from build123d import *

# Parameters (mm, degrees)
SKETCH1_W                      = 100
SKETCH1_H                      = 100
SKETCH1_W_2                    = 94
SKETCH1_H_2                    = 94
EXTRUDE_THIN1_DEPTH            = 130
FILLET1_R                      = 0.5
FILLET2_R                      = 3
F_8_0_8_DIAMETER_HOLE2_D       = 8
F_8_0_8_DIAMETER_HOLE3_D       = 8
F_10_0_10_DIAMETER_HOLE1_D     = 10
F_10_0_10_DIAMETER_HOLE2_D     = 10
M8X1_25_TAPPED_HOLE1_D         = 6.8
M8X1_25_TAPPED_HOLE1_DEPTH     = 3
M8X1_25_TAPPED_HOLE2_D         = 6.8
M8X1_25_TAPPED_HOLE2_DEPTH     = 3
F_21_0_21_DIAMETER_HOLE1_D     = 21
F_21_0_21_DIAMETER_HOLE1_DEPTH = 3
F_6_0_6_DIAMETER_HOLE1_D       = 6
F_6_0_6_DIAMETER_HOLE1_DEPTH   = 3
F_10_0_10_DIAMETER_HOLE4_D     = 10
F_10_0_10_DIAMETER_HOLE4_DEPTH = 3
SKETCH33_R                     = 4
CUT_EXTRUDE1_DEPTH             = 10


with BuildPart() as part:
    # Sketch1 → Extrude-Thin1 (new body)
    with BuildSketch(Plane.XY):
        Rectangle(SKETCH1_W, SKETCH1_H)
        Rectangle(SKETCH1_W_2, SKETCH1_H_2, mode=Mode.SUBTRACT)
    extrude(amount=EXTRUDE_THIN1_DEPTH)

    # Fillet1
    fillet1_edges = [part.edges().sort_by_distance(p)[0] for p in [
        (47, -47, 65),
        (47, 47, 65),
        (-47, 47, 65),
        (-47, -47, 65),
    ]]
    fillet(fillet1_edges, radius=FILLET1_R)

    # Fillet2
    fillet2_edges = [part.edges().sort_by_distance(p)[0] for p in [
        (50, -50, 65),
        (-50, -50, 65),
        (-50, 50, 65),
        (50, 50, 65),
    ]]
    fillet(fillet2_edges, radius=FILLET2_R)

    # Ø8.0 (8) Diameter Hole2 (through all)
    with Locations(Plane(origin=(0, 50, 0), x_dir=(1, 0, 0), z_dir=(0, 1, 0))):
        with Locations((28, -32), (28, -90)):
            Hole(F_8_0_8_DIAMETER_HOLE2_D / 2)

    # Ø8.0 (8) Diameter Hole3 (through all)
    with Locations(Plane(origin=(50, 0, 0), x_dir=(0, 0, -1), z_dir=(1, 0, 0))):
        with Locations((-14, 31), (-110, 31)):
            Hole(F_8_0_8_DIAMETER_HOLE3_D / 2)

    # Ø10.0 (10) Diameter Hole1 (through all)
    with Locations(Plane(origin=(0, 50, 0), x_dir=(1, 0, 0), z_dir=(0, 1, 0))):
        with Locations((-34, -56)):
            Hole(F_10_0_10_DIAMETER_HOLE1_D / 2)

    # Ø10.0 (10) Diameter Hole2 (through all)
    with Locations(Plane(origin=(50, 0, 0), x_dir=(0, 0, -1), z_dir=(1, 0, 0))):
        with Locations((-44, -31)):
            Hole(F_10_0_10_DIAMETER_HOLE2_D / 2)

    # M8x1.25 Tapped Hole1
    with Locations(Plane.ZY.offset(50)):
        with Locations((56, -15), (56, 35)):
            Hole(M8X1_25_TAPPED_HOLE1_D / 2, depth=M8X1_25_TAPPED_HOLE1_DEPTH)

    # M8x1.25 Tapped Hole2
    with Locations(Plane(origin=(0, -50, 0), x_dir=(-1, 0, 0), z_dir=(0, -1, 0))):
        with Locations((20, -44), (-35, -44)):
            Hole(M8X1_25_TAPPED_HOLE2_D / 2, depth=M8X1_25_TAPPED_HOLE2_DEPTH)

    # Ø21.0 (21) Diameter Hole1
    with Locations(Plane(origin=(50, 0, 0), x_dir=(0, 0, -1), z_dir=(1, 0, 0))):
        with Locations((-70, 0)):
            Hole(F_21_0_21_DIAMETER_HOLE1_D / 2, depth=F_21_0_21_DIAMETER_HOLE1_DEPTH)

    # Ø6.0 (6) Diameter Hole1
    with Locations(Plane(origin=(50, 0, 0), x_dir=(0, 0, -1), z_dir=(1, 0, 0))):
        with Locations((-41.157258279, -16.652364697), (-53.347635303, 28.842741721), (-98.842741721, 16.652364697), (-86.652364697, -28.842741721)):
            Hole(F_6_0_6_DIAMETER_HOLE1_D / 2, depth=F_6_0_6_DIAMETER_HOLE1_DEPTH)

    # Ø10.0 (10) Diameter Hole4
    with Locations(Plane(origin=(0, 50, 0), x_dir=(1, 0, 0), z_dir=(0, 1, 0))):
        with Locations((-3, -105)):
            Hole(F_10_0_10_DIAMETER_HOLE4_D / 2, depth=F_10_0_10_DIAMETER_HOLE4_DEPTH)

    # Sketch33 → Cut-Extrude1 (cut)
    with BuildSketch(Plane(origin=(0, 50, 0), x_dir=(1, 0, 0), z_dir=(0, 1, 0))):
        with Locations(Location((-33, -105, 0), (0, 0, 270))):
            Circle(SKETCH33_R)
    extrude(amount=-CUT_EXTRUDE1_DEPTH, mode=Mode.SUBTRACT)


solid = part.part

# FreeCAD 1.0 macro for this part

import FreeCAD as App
import Part
import Sketcher
from FreeCAD import Vector


def edges_at(feature, points):
    """Names of the edges that pass closest to the given points."""
    edges = feature.Shape.Edges
    near = lambda p: min(range(len(edges)), key=lambda i: edges[i].distToShape(Part.Vertex(*p))[0])
    return sorted({f"Edge{near(p) + 1}" for p in points})

doc = App.newDocument("Part")
params = doc.addObject("Spreadsheet::Sheet", "Params")
for row, (alias, value) in enumerate([
    ("sketch1_width", "100 mm"),
    ("sketch1_width2", "94 mm"),
    ("pad1_length", "130 mm"),
    ("fillet_radius", "0.5 mm"),
    ("fillet2_radius", "3 mm"),
    ("sketch2_diameter", "8 mm"),
    ("hole_diameter", "8 mm"),
    ("sketch3_diameter", "8 mm"),
    ("hole2_diameter", "8 mm"),
    ("sketch4_diameter", "10 mm"),
    ("hole3_diameter", "10 mm"),
    ("sketch5_diameter", "10 mm"),
    ("hole4_diameter", "10 mm"),
    ("sketch6_diameter", "6.8 mm"),
    ("hole5_diameter", "6.8 mm"),
    ("hole5_depth", "3 mm"),
    ("sketch7_diameter", "6.8 mm"),
    ("hole6_diameter", "6.8 mm"),
    ("hole6_depth", "3 mm"),
    ("sketch8_diameter", "21 mm"),
    ("hole7_diameter", "21 mm"),
    ("hole7_depth", "3 mm"),
    ("sketch9_diameter", "6 mm"),
    ("hole8_diameter", "6 mm"),
    ("hole8_depth", "3 mm"),
    ("sketch10_diameter", "10 mm"),
    ("hole9_diameter", "10 mm"),
    ("hole9_depth", "3 mm"),
    ("sketch11_diameter", "8 mm"),
    ("pocket1_length", "10 mm"),
], start=1):
    params.set(f"A{row}", alias)
    params.set(f"B{row}", "=" + value)
    params.setAlias(f"B{row}", alias)

body = doc.addObject("PartDesign::Body", "Body")

sketch1 = body.newObject("Sketcher::SketchObject", "Sketch")
sketch1.AttachmentSupport = (doc.getObject("XY_Plane"), [""])
sketch1.MapMode = "FlatFace"
sketch1.addGeometry([
    Part.LineSegment(Vector(-50, 50, 0), Vector(-50, -50, 0)),
    Part.LineSegment(Vector(-50, -50, 0), Vector(50, -50, 0)),
    Part.LineSegment(Vector(50, -50, 0), Vector(50, 50, 0)),
    Part.LineSegment(Vector(50, 50, 0), Vector(-50, 50, 0)),
    Part.LineSegment(Vector(47, -47, 0), Vector(-47, -47, 0)),
    Part.LineSegment(Vector(-47, -47, 0), Vector(-47, 47, 0)),
    Part.LineSegment(Vector(-47, 47, 0), Vector(47, 47, 0)),
    Part.LineSegment(Vector(47, 47, 0), Vector(47, -47, 0)),
], False)
sketch1.addConstraint([
    Sketcher.Constraint("Coincident", 0, 2, 1, 1),
    Sketcher.Constraint("Coincident", 1, 2, 2, 1),
    Sketcher.Constraint("Coincident", 2, 2, 3, 1),
    Sketcher.Constraint("Coincident", 3, 2, 0, 1),
    Sketcher.Constraint("Coincident", 4, 2, 5, 1),
    Sketcher.Constraint("Coincident", 5, 2, 6, 1),
    Sketcher.Constraint("Coincident", 6, 2, 7, 1),
    Sketcher.Constraint("Coincident", 7, 2, 4, 1),
    Sketcher.Constraint("Vertical", 0),
    Sketcher.Constraint("Horizontal", 1),
    Sketcher.Constraint("Vertical", 2),
    Sketcher.Constraint("Horizontal", 3),
    Sketcher.Constraint("Horizontal", 4),
    Sketcher.Constraint("Vertical", 5),
    Sketcher.Constraint("Horizontal", 6),
    Sketcher.Constraint("Vertical", 7),
    Sketcher.Constraint("Symmetric", 0, 2, 2, 2, -1, 1),
    Sketcher.Constraint("Symmetric", 4, 2, 6, 2, -1, 1),
    Sketcher.Constraint("Equal", 3, 0),
    Sketcher.Constraint("Equal", 6, 5),
    Sketcher.Constraint("DistanceX", 1, 1, 1, 2, 100.0),
    Sketcher.Constraint("DistanceX", 4, 2, 4, 1, 94.0),
])
sketch1.setExpression("Constraints[20]", "Params.sketch1_width")
sketch1.setExpression("Constraints[21]", "Params.sketch1_width2")
pad1 = body.newObject("PartDesign::Pad", "Pad")
pad1.Profile = sketch1
pad1.setExpression("Length", "Params.pad1_length")
doc.recompute()

fillet = body.newObject("PartDesign::Fillet", "Fillet")
fillet.Base = (pad1, edges_at(pad1, [
    (47, -47, 65),
    (47, 47, 65),
    (-47, 47, 65),
    (-47, -47, 65),
]))
fillet.setExpression("Radius", "Params.fillet_radius")
doc.recompute()

fillet2 = body.newObject("PartDesign::Fillet", "Fillet001")
fillet2.Base = (fillet, edges_at(fillet, [
    (50, -50, 65),
    (-50, -50, 65),
    (-50, 50, 65),
    (50, 50, 65),
]))
fillet2.setExpression("Radius", "Params.fillet2_radius")

sketch2 = body.newObject("Sketcher::SketchObject", "Sketch001")
sketch2.AttachmentSupport = (doc.getObject("XZ_Plane"), [""])
sketch2.MapMode = "FlatFace"
sketch2.AttachmentOffset = App.Placement(Vector(0, 0, -50), App.Rotation())
sketch2.addGeometry([
    Part.Circle(Vector(28, 32, 0), Vector(0, 0, 1), 4),
    Part.Circle(Vector(28, 90, 0), Vector(0, 0, 1), 4),
], False)
sketch2.addConstraint([
    Sketcher.Constraint("Equal", 0, 1),
    Sketcher.Constraint("Vertical", 0, 3, 1, 3),
    Sketcher.Constraint("Diameter", 0, 8.0),
    Sketcher.Constraint("DistanceX", -1, 1, 0, 3, 28.0),
    Sketcher.Constraint("DistanceY", -1, 1, 0, 3, 32.0),
    Sketcher.Constraint("DistanceY", -1, 1, 1, 3, 90.0),
])
sketch2.setExpression("Constraints[2]", "Params.sketch2_diameter")
doc.recompute()
hole = body.newObject("PartDesign::Hole", "Hole")
hole.Profile = sketch2
hole.ThreadType = "None"
hole.setExpression("Diameter", "Params.hole_diameter")
hole.DepthType = "ThroughAll"
hole.Reversed = True

sketch3 = body.newObject("Sketcher::SketchObject", "Sketch002")
sketch3.AttachmentSupport = (doc.getObject("YZ_Plane"), [""])
sketch3.MapMode = "FlatFace"
sketch3.AttachmentOffset = App.Placement(Vector(0, 0, 50), App.Rotation())
sketch3.addGeometry([
    Part.Circle(Vector(31, 14, 0), Vector(0, 0, 1), 4),
    Part.Circle(Vector(31, 110, 0), Vector(0, 0, 1), 4),
], False)
sketch3.addConstraint([
    Sketcher.Constraint("Equal", 0, 1),
    Sketcher.Constraint("Vertical", 0, 3, 1, 3),
    Sketcher.Constraint("Diameter", 0, 8.0),
    Sketcher.Constraint("DistanceX", -1, 1, 0, 3, 31.0),
    Sketcher.Constraint("DistanceY", -1, 1, 0, 3, 14.0),
    Sketcher.Constraint("DistanceY", -1, 1, 1, 3, 110.0),
])
sketch3.setExpression("Constraints[2]", "Params.sketch3_diameter")
doc.recompute()
hole2 = body.newObject("PartDesign::Hole", "Hole001")
hole2.Profile = sketch3
hole2.ThreadType = "None"
hole2.setExpression("Diameter", "Params.hole2_diameter")
hole2.DepthType = "ThroughAll"

sketch4 = body.newObject("Sketcher::SketchObject", "Sketch003")
sketch4.AttachmentSupport = (doc.getObject("XZ_Plane"), [""])
sketch4.MapMode = "FlatFace"
sketch4.AttachmentOffset = App.Placement(Vector(0, 0, -50), App.Rotation())
sketch4.addGeometry(Part.Circle(Vector(-34, 56, 0), Vector(0, 0, 1), 5), False)
sketch4.addConstraint([
    Sketcher.Constraint("Diameter", 0, 10.0),
    Sketcher.Constraint("DistanceX", 0, 3, -1, 1, 34.0),
    Sketcher.Constraint("DistanceY", -1, 1, 0, 3, 56.0),
])
sketch4.setExpression("Constraints[0]", "Params.sketch4_diameter")
doc.recompute()
hole3 = body.newObject("PartDesign::Hole", "Hole002")
hole3.Profile = sketch4
hole3.ThreadType = "None"
hole3.setExpression("Diameter", "Params.hole3_diameter")
hole3.DepthType = "ThroughAll"
hole3.Reversed = True

sketch5 = body.newObject("Sketcher::SketchObject", "Sketch004")
sketch5.AttachmentSupport = (doc.getObject("YZ_Plane"), [""])
sketch5.MapMode = "FlatFace"
sketch5.AttachmentOffset = App.Placement(Vector(0, 0, 50), App.Rotation())
sketch5.addGeometry(Part.Circle(Vector(-31, 44, 0), Vector(0, 0, 1), 5), False)
sketch5.addConstraint([
    Sketcher.Constraint("Diameter", 0, 10.0),
    Sketcher.Constraint("DistanceX", 0, 3, -1, 1, 31.0),
    Sketcher.Constraint("DistanceY", -1, 1, 0, 3, 44.0),
])
sketch5.setExpression("Constraints[0]", "Params.sketch5_diameter")
doc.recompute()
hole4 = body.newObject("PartDesign::Hole", "Hole003")
hole4.Profile = sketch5
hole4.ThreadType = "None"
hole4.setExpression("Diameter", "Params.hole4_diameter")
hole4.DepthType = "ThroughAll"

sketch6 = body.newObject("Sketcher::SketchObject", "Sketch005")
sketch6.AttachmentSupport = (doc.getObject("YZ_Plane"), [""])
sketch6.MapMode = "FlatFace"
sketch6.AttachmentOffset = App.Placement(Vector(0, 0, -50), App.Rotation())
sketch6.addGeometry([
    Part.Circle(Vector(-15, 56, 0), Vector(0, 0, 1), 3.4),
    Part.Circle(Vector(35, 56, 0), Vector(0, 0, 1), 3.4),
], False)
sketch6.addConstraint([
    Sketcher.Constraint("Equal", 0, 1),
    Sketcher.Constraint("Horizontal", 0, 3, 1, 3),
    Sketcher.Constraint("Diameter", 0, 6.8),
    Sketcher.Constraint("DistanceX", 0, 3, -1, 1, 15.0),
    Sketcher.Constraint("DistanceY", -1, 1, 0, 3, 56.0),
    Sketcher.Constraint("DistanceX", -1, 1, 1, 3, 35.0),
])
sketch6.setExpression("Constraints[2]", "Params.sketch6_diameter")
doc.recompute()
hole5 = body.newObject("PartDesign::Hole", "Hole004")
hole5.Profile = sketch6
hole5.ThreadType = "None"
hole5.setExpression("Diameter", "Params.hole5_diameter")
hole5.DepthType = "Dimension"
hole5.setExpression("Depth", "Params.hole5_depth")
hole5.DrillPoint = "Flat"
hole5.Reversed = True

sketch7 = body.newObject("Sketcher::SketchObject", "Sketch006")
sketch7.AttachmentSupport = (doc.getObject("XZ_Plane"), [""])
sketch7.MapMode = "FlatFace"
sketch7.AttachmentOffset = App.Placement(Vector(0, 0, 50), App.Rotation())
sketch7.addGeometry([
    Part.Circle(Vector(-20, 44, 0), Vector(0, 0, 1), 3.4),
    Part.Circle(Vector(35, 44, 0), Vector(0, 0, 1), 3.4),
], False)
sketch7.addConstraint([
    Sketcher.Constraint("Equal", 0, 1),
    Sketcher.Constraint("Horizontal", 0, 3, 1, 3),
    Sketcher.Constraint("Diameter", 0, 6.8),
    Sketcher.Constraint("DistanceX", 0, 3, -1, 1, 20.0),
    Sketcher.Constraint("DistanceY", -1, 1, 0, 3, 44.0),
    Sketcher.Constraint("DistanceX", -1, 1, 1, 3, 35.0),
])
sketch7.setExpression("Constraints[2]", "Params.sketch7_diameter")
doc.recompute()
hole6 = body.newObject("PartDesign::Hole", "Hole005")
hole6.Profile = sketch7
hole6.ThreadType = "None"
hole6.setExpression("Diameter", "Params.hole6_diameter")
hole6.DepthType = "Dimension"
hole6.setExpression("Depth", "Params.hole6_depth")
hole6.DrillPoint = "Flat"

sketch8 = body.newObject("Sketcher::SketchObject", "Sketch007")
sketch8.AttachmentSupport = (doc.getObject("YZ_Plane"), [""])
sketch8.MapMode = "FlatFace"
sketch8.AttachmentOffset = App.Placement(Vector(0, 0, 50), App.Rotation())
sketch8.addGeometry(Part.Circle(Vector(0, 70, 0), Vector(0, 0, 1), 10), False)
sketch8.addConstraint([
    Sketcher.Constraint("PointOnObject", 0, 3, -2),
    Sketcher.Constraint("Diameter", 0, 21.0),
    Sketcher.Constraint("DistanceY", -1, 1, 0, 3, 70.0),
])
sketch8.setExpression("Constraints[1]", "Params.sketch8_diameter")
doc.recompute()
hole7 = body.newObject("PartDesign::Hole", "Hole006")
hole7.Profile = sketch8
hole7.ThreadType = "None"
hole7.setExpression("Diameter", "Params.hole7_diameter")
hole7.DepthType = "Dimension"
hole7.setExpression("Depth", "Params.hole7_depth")
hole7.DrillPoint = "Flat"

sketch9 = body.newObject("Sketcher::SketchObject", "Sketch008")
sketch9.AttachmentSupport = (doc.getObject("YZ_Plane"), [""])
sketch9.MapMode = "FlatFace"
sketch9.AttachmentOffset = App.Placement(Vector(0, 0, 50), App.Rotation())
sketch9.addGeometry([
    Part.Circle(Vector(-16.7, 41.2, 0), Vector(0, 0, 1), 3),
    Part.Circle(Vector(28.8, 53.3, 0), Vector(0, 0, 1), 3),
    Part.Circle(Vector(16.7, 98.8, 0), Vector(0, 0, 1), 3),
    Part.Circle(Vector(-28.8, 86.7, 0), Vector(0, 0, 1), 3),
], False)
sketch9.addConstraint([
    Sketcher.Constraint("Equal", 0, 1),
    Sketcher.Constraint("Equal", 1, 2),
    Sketcher.Constraint("Equal", 2, 3),
    Sketcher.Constraint("Diameter", 0, 6.0),
    Sketcher.Constraint("DistanceY", -1, 1, 0, 3, 41.157258),
    Sketcher.Constraint("DistanceX", -1, 1, 1, 3, 28.842742),
    Sketcher.Constraint("DistanceY", -1, 1, 2, 3, 98.842742),
    Sketcher.Constraint("DistanceX", 3, 3, -1, 1, 28.842742),
    Sketcher.Constraint("DistanceX", 0, 3, 2, 3, 33.304729),
    Sketcher.Constraint("DistanceY", 1, 3, 3, 3, 33.304729),
    Sketcher.Constraint("DistanceX", 0, 3, -1, 1, 16.652365),
    Sketcher.Constraint("DistanceY", -1, 1, 1, 3, 53.347635),
])
sketch9.setExpression("Constraints[3]", "Params.sketch9_diameter")
doc.recompute()
hole8 = body.newObject("PartDesign::Hole", "Hole007")
hole8.Profile = sketch9
hole8.ThreadType = "None"
hole8.setExpression("Diameter", "Params.hole8_diameter")
hole8.DepthType = "Dimension"
hole8.setExpression("Depth", "Params.hole8_depth")
hole8.DrillPoint = "Flat"

sketch10 = body.newObject("Sketcher::SketchObject", "Sketch009")
sketch10.AttachmentSupport = (doc.getObject("XZ_Plane"), [""])
sketch10.MapMode = "FlatFace"
sketch10.AttachmentOffset = App.Placement(Vector(0, 0, -50), App.Rotation())
sketch10.addGeometry(Part.Circle(Vector(-3, 105, 0), Vector(0, 0, 1), 5), False)
sketch10.addConstraint([
    Sketcher.Constraint("Diameter", 0, 10.0),
    Sketcher.Constraint("DistanceX", 0, 3, -1, 1, 3.0),
    Sketcher.Constraint("DistanceY", -1, 1, 0, 3, 105.0),
])
sketch10.setExpression("Constraints[0]", "Params.sketch10_diameter")
doc.recompute()
hole9 = body.newObject("PartDesign::Hole", "Hole008")
hole9.Profile = sketch10
hole9.ThreadType = "None"
hole9.setExpression("Diameter", "Params.hole9_diameter")
hole9.DepthType = "Dimension"
hole9.setExpression("Depth", "Params.hole9_depth")
hole9.DrillPoint = "Flat"
hole9.Reversed = True

sketch11 = body.newObject("Sketcher::SketchObject", "Sketch010")
sketch11.AttachmentSupport = (doc.getObject("XZ_Plane"), [""])
sketch11.MapMode = "FlatFace"
sketch11.AttachmentOffset = App.Placement(Vector(0, 0, -50), App.Rotation())
sketch11.addGeometry(Part.Circle(Vector(-33, 105, 0), Vector(0, 0, 1), 4), False)
sketch11.addConstraint([
    Sketcher.Constraint("Diameter", 0, 8.0),
    Sketcher.Constraint("DistanceX", 0, 3, -1, 1, 33.0),
    Sketcher.Constraint("DistanceY", -1, 1, 0, 3, 105.0),
])
sketch11.setExpression("Constraints[0]", "Params.sketch11_diameter")
pocket1 = body.newObject("PartDesign::Pocket", "Pocket")
pocket1.Profile = sketch11
pocket1.setExpression("Length", "Params.pocket1_length")
pocket1.Reversed = True

doc.recompute()
